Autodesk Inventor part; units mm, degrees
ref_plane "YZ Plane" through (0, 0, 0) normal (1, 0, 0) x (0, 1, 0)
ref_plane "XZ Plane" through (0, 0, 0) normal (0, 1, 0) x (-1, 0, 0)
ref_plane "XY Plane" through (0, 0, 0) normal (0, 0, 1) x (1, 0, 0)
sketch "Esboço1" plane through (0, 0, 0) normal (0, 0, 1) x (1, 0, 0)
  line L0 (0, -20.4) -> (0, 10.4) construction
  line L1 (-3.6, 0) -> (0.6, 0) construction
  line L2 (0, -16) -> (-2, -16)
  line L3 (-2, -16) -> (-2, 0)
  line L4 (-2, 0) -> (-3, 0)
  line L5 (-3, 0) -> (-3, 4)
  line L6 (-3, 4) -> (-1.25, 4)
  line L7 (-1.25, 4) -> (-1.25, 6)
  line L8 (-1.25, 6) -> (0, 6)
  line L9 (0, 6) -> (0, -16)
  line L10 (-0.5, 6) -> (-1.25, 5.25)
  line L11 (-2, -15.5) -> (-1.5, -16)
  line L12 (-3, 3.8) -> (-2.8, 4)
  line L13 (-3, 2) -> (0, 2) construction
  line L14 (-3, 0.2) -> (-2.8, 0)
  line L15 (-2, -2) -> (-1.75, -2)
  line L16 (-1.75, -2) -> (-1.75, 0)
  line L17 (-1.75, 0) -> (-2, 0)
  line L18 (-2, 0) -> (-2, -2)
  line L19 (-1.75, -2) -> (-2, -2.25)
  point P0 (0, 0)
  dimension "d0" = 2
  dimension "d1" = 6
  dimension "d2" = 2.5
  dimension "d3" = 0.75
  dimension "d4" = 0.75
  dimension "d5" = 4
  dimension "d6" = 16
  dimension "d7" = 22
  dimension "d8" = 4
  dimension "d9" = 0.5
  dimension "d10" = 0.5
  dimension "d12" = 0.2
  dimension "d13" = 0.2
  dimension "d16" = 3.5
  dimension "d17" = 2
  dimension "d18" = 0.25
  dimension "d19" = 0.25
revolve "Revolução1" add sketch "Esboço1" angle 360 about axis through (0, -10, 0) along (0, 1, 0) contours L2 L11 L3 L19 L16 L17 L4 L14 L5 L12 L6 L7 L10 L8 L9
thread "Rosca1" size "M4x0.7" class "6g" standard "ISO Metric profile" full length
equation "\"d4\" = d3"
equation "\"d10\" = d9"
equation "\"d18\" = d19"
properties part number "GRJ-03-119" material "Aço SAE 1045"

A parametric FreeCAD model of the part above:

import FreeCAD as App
import Part
import Sketcher

V = App.Vector


def add_polygon(sketch, points):
    """Adds a closed chain of lines whose ends are joined by coincident constraints."""
    first, n = sketch.GeometryCount, len(points)
    for a, b in zip(points, points[1:] + points[:1]):
        sketch.addGeometry(Part.LineSegment(App.Vector(*a, 0), App.Vector(*b, 0)), False)
    for i in range(n):
        sketch.addConstraint(Sketcher.Constraint("Coincident", first + i, 2, first + (i + 1) % n, 1))

doc = App.newDocument("Part")
body = doc.addObject("PartDesign::Body", "Body")

sketch1 = body.newObject("Sketcher::SketchObject", "Sketch")
sketch1.AttachmentSupport = (doc.getObject("XY_Plane"), [""])
sketch1.MapMode = "FlatFace"
add_polygon(sketch1, [(-1.5, -16), (0, -16), (0, 6), (-0.5, 6), (-1.25, 5.25), (-1.25, 4), (-2.8, 4), (-3, 3.8), (-3, 0.2), (-2.8, 0), (-1.75, 0), (-1.75, -2), (-2, -2.25), (-2, -15.5)])
sketch1.addConstraint([
    Sketcher.Constraint("Horizontal", 0),
    Sketcher.Constraint("Vertical", 1),
    Sketcher.Constraint("Horizontal", 2),
    Sketcher.Constraint("Vertical", 4),
    Sketcher.Constraint("Horizontal", 5),
    Sketcher.Constraint("Vertical", 7),
    Sketcher.Constraint("Horizontal", 9),
    Sketcher.Constraint("Vertical", 10),
    Sketcher.Constraint("Vertical", 12),
    Sketcher.Constraint("PointOnObject", 0, 2, -2),
    Sketcher.Constraint("PointOnObject", 8, 2, -1),
    Sketcher.Constraint("Parallel", 3, 6),
    Sketcher.Constraint("Perpendicular", 6, 8),
    Sketcher.Constraint("Perpendicular", 8, 11),
    Sketcher.Constraint("Perpendicular", 11, 13),
    Sketcher.Constraint("Vertical", 5, 2, 8, 2),
    Sketcher.Constraint("Equal", 6, 8),
    Sketcher.Constraint("DistanceY", 1, 1, 1, 2, 22.0),
    Sketcher.Constraint("DistanceY", 10, 2, 10, 1, 2.0),
    Sketcher.Constraint("DistanceX", 2, 2, 2, 1, 0.5),
    Sketcher.Constraint("DistanceY", 0, 2, -1, 1, 16.0),
    Sketcher.Constraint("DistanceY", -1, 1, 4, 2, 4.0),
    Sketcher.Constraint("DistanceX", 11, 2, -1, 1, 2.0),
    Sketcher.Constraint("DistanceY", -1, 1, 7, 2, 0.2),
    Sketcher.Constraint("DistanceX", 6, 2, 2, 2, 2.5),
    Sketcher.Constraint("DistanceX", 9, 2, 4, 2, 0.5),
    Sketcher.Constraint("DistanceY", 0, 2, 12, 2, 0.5),
    Sketcher.Constraint("DistanceX", 3, 2, 2, 2, 0.75),
])
revolution = body.newObject("PartDesign::Revolution", "Revolution")
revolution.Profile = sketch1
revolution.ReferenceAxis = (sketch1, ["V_Axis"])
revolution.Angle = 360

doc.recompute()
